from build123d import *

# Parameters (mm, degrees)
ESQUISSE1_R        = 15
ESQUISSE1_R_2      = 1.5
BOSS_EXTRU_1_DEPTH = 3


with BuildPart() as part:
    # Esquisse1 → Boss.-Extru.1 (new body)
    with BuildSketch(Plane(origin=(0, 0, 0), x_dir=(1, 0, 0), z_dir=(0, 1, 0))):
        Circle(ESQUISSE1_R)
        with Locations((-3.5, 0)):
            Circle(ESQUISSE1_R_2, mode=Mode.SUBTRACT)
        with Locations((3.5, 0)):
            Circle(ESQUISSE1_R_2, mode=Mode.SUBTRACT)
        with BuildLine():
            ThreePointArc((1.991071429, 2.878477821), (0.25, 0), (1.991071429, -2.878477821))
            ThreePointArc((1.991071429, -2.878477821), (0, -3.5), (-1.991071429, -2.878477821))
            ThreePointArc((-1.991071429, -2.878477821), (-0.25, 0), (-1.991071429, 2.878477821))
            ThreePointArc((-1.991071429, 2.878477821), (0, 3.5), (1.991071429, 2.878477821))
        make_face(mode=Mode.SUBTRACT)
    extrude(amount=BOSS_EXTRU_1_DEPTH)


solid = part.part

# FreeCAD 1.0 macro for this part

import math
import FreeCAD as App
import Part
import Sketcher

V = App.Vector
Q = App.Units.Quantity

doc = App.newDocument("Part")
body = doc.addObject("PartDesign::Body", "Body")

sketch1 = doc.addObject("Sketcher::SketchObject", "Sketch")
body.addObject(sketch1)
sketch1.AttachmentSupport = (doc.XZ_Plane, [""])
sketch1.MapMode = "FlatFace"
sketch1.addGeometry(Part.Circle(V(0, 0, 0), V(0, 0, 1), 15), False)
sketch1.addGeometry(Part.Circle(V(-3.5, 0, 0), V(0, 0, 1), 1.5), False)
sketch1.addGeometry(Part.ArcOfCircle(Part.Circle(V(0, 0, 0), V(0, 0, 1), 3.5), math.radians(-125), math.radians(-55)), False)
sketch1.addGeometry(Part.ArcOfCircle(Part.Circle(V(3.5, 0, 0), V(0, 0, 1), 3.2), math.radians(118), math.radians(242)), False)
sketch1.addGeometry(Part.ArcOfCircle(Part.Circle(V(0, 0, 0), V(0, 0, 1), 3.5), math.radians(55), math.radians(125)), False)
sketch1.addGeometry(Part.ArcOfCircle(Part.Circle(V(-3.5, 0, 0), V(0, 0, 1), 3.2), math.radians(-62), math.radians(62)), False)
sketch1.addGeometry(Part.Circle(V(3.5, 0, 0), V(0, 0, 1), 1.5), False)
sketch1.addConstraint(Sketcher.Constraint("Coincident", 2, 2, 3, 2))
sketch1.addConstraint(Sketcher.Constraint("Coincident", 3, 1, 4, 1))
sketch1.addConstraint(Sketcher.Constraint("Coincident", 4, 2, 5, 2))
sketch1.addConstraint(Sketcher.Constraint("Coincident", 5, 1, 2, 1))
sketch1.addConstraint(Sketcher.Constraint("Coincident", 0, 3, -1, 1))
sketch1.addConstraint(Sketcher.Constraint("Coincident", 2, 3, -1, 1))
sketch1.addConstraint(Sketcher.Constraint("Coincident", 4, 3, -1, 1))
sketch1.addConstraint(Sketcher.Constraint("Coincident", 5, 3, 1, 3))
sketch1.addConstraint(Sketcher.Constraint("Coincident", 6, 3, 3, 3))
sketch1.addConstraint(Sketcher.Constraint("Equal", 2, 4))
sketch1.addConstraint(Sketcher.Constraint("Equal", 3, 5))
sketch1.addConstraint(Sketcher.Constraint("Equal", 1, 6))
sketch1.addConstraint(Sketcher.Constraint("Symmetric", 1, 3, 3, 3, -1, 1))
sketch1.addConstraint(Sketcher.Constraint("PointOnObject", 1, 3, -1))
sketch1.addConstraint(Sketcher.Constraint("Diameter", 0, Q("30 mm")))
sketch1.addConstraint(Sketcher.Constraint("Diameter", 1, Q("3 mm")))
sketch1.addConstraint(Sketcher.Constraint("Radius", 2, Q("3.5 mm")))
sketch1.addConstraint(Sketcher.Constraint("Radius", 3, Q("3.25 mm")))
sketch1.addConstraint(Sketcher.Constraint("DistanceX", 1, 3, 3, 3, Q("7 mm")))
pad1 = doc.addObject("PartDesign::Pad", "Pad")
body.addObject(pad1)
pad1.Profile = sketch1
pad1.Length = 3
pad1.Reversed = True

doc.recompute()
